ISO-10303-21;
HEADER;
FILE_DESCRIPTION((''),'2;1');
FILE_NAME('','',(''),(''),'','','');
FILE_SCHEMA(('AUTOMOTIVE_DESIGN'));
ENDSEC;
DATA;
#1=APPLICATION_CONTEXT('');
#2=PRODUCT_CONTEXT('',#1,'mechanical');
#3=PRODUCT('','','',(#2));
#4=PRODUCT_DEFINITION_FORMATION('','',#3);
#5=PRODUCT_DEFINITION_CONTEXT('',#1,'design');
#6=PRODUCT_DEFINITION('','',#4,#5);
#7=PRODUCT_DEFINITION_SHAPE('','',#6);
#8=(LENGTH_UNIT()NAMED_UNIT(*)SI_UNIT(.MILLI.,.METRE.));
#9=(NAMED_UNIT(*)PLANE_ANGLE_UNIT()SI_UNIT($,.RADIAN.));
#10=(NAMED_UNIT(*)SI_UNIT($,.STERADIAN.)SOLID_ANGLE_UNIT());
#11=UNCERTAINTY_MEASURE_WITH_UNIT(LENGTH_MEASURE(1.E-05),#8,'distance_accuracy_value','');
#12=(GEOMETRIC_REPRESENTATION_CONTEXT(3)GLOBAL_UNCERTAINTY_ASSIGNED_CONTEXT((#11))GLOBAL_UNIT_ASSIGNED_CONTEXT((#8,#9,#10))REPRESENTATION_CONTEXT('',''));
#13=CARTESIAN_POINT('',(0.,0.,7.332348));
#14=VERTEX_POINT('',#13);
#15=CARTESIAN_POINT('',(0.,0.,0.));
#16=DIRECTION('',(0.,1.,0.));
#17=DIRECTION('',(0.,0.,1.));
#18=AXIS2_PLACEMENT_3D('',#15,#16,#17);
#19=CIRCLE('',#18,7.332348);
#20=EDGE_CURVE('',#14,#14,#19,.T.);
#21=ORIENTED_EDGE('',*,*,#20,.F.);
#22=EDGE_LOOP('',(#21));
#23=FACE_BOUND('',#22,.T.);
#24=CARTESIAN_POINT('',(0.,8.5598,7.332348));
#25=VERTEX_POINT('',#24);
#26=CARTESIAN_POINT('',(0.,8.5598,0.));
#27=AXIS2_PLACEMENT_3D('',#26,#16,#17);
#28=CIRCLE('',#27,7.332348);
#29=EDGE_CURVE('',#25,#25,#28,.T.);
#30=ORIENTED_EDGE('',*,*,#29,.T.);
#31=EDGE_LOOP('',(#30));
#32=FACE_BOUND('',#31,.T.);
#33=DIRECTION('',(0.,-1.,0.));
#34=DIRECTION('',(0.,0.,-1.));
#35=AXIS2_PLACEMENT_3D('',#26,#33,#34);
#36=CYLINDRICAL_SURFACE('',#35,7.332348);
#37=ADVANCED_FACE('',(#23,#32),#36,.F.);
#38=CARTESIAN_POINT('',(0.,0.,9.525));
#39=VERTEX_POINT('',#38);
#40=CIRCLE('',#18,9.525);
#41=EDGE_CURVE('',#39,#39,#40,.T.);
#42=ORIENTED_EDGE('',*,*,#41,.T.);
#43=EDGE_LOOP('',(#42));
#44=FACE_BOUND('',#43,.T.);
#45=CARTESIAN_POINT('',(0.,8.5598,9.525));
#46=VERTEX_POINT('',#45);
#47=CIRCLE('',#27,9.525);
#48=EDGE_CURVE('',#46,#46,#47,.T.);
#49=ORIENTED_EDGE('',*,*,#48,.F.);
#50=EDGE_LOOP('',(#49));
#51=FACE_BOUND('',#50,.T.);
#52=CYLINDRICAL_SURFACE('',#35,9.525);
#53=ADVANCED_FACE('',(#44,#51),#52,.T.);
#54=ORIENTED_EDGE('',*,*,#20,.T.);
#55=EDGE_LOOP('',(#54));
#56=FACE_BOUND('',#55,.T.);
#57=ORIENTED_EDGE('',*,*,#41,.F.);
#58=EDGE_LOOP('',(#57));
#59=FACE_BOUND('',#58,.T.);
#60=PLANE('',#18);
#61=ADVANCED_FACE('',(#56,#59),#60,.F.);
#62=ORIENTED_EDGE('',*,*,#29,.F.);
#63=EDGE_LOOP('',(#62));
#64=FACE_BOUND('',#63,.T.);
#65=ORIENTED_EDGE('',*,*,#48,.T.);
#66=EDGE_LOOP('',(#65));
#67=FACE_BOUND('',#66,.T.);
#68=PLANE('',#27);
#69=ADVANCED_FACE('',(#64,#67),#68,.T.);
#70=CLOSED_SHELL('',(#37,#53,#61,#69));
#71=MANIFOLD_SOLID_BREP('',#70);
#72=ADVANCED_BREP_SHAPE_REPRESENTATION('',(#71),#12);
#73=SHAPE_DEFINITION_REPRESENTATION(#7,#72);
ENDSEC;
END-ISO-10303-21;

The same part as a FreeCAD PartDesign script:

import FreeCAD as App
import Part
import Sketcher

V = App.Vector
Q = App.Units.Quantity

doc = App.newDocument("Part")
body = doc.addObject("PartDesign::Body", "Body")

sketch1 = doc.addObject("Sketcher::SketchObject", "Sketch")
body.addObject(sketch1)
sketch1.AttachmentSupport = (doc.XZ_Plane, [""])
sketch1.MapMode = "FlatFace"
sketch1.addGeometry([
    Part.Circle(V(0, 0, 0), V(0, 0, 1), 10),
    Part.Circle(V(0, 0, 0), V(0, 0, 1), 7),
], False)
sketch1.addConstraint([
    Sketcher.Constraint("Coincident", 0, 3, -1, 1),
    Sketcher.Constraint("Coincident", 1, 3, -1, 1),
    Sketcher.Constraint("Diameter", 0, Q("0.75 in")),
    Sketcher.Constraint("Diameter", 1, 14.664697),
])
pad1 = doc.addObject("PartDesign::Pad", "Pad")
body.addObject(pad1)
pad1.Profile = sketch1
pad1.Length = Q("0.337 in")
pad1.Reversed = True

doc.recompute()
